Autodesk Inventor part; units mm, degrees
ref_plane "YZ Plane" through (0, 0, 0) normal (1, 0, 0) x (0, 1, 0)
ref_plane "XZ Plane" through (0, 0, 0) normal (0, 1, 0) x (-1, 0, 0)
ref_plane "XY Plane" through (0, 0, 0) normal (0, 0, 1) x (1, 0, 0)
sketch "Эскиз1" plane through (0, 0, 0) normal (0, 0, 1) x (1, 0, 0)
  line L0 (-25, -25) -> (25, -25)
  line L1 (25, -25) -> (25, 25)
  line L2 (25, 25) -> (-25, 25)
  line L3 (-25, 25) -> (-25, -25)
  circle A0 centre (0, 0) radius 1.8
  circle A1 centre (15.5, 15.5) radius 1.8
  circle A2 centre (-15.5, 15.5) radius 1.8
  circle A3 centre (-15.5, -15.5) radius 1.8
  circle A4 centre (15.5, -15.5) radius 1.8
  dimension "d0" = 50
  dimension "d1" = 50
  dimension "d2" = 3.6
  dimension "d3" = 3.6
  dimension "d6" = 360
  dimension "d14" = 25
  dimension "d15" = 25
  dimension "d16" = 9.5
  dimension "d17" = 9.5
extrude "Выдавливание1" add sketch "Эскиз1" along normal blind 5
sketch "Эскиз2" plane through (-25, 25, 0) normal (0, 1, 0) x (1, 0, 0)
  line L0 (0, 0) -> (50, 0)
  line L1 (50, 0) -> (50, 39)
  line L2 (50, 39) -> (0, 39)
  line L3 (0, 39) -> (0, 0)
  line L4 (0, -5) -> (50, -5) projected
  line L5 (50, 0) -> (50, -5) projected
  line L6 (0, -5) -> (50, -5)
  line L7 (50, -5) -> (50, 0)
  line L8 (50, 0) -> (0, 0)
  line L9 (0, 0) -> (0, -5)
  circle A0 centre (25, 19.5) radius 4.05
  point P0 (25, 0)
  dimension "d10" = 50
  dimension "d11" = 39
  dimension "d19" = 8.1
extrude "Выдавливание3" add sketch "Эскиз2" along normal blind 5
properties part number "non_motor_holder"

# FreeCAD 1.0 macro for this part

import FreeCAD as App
import Part
import Sketcher
from FreeCAD import Vector


def add_polygon(sketch, points):
    """Adds a closed chain of lines whose ends are joined by coincident constraints."""
    first, n = sketch.GeometryCount, len(points)
    for a, b in zip(points, points[1:] + points[:1]):
        sketch.addGeometry(Part.LineSegment(App.Vector(*a, 0), App.Vector(*b, 0)), False)
    for i in range(n):
        sketch.addConstraint(Sketcher.Constraint("Coincident", first + i, 2, first + (i + 1) % n, 1))

doc = App.newDocument("Part")
body = doc.addObject("PartDesign::Body", "Body")

sketch1 = doc.addObject("Sketcher::SketchObject", "Sketch")
body.addObject(sketch1)
sketch1.AttachmentSupport = (doc.XY_Plane, [""])
sketch1.MapMode = "FlatFace"
add_polygon(sketch1, [(-25, 25), (-25, -25), (25, -25), (25, 25)])
sketch1.addGeometry(Part.Circle(Vector(-15.5, -15.5, 0), Vector(0, 0, 1), 1.8), False)
sketch1.addGeometry(Part.Circle(Vector(15.5, -15.5, 0), Vector(0, 0, 1), 1.8), False)
sketch1.addGeometry(Part.Circle(Vector(-15.5, 15.5, 0), Vector(0, 0, 1), 1.8), False)
sketch1.addGeometry(Part.Circle(Vector(0, 0, 0), Vector(0, 0, 1), 1.8), False)
sketch1.addGeometry(Part.Circle(Vector(15.5, 15.5, 0), Vector(0, 0, 1), 1.8), False)
sketch1.addConstraint([
    Sketcher.Constraint("Vertical", 0),
    Sketcher.Constraint("Horizontal", 1),
    Sketcher.Constraint("Vertical", 2),
    Sketcher.Constraint("Horizontal", 3),
    Sketcher.Constraint("Coincident", 7, 3, -1, 1),
    Sketcher.Constraint("Equal", 4, 5),
    Sketcher.Constraint("Equal", 5, 6),
    Sketcher.Constraint("Equal", 6, 7),
    Sketcher.Constraint("Equal", 7, 8),
    Sketcher.Constraint("Symmetric", 5, 3, 6, 3, -1, 1),
    Sketcher.Constraint("Symmetric", 4, 3, 8, 3, -1, 1),
    Sketcher.Constraint("Symmetric", 0, 2, 2, 2, -1, 1),
    Sketcher.Constraint("Symmetric", 4, 3, 5, 3, -2),
    Sketcher.Constraint("Equal", 3, 0),
    Sketcher.Constraint("Diameter", 4, 3.6),
    Sketcher.Constraint("DistanceX", 1, 1, 1, 2, 50.0),
    Sketcher.Constraint("DistanceX", 0, 2, 4, 3, 9.5),
    Sketcher.Constraint("DistanceY", 0, 2, 4, 3, 9.5),
])
pad1 = doc.addObject("PartDesign::Pad", "Pad")
body.addObject(pad1)
pad1.Profile = sketch1
pad1.Length = 5

sketch2 = doc.addObject("Sketcher::SketchObject", "Sketch001")
body.addObject(sketch2)
sketch2.AttachmentSupport = (doc.XZ_Plane, [""])
sketch2.MapMode = "FlatFace"
sketch2.AttachmentOffset = App.Placement(Vector(0, 0, -25), App.Rotation())
add_polygon(sketch2, [(-25, -39), (-25, 5), (25, 5), (25, -39)])
sketch2.addGeometry(Part.Circle(Vector(0, -19.5, 0), Vector(0, 0, 1), 4), False)
sketch2.addConstraint([
    Sketcher.Constraint("Vertical", 0),
    Sketcher.Constraint("Horizontal", 1),
    Sketcher.Constraint("Vertical", 2),
    Sketcher.Constraint("Horizontal", 3),
    Sketcher.Constraint("PointOnObject", 4, 3, -2),
    Sketcher.Constraint("Diameter", 4, 8.1),
    Sketcher.Constraint("DistanceX", 1, 1, 1, 2, 50.0),
    Sketcher.Constraint("DistanceY", 2, 2, -1, 1, 39.0),
    Sketcher.Constraint("DistanceY", 0, 1, 0, 2, 44.0),
    Sketcher.Constraint("DistanceX", 0, 2, -1, 1, 25.0),
    Sketcher.Constraint("DistanceY", 4, 3, -1, 1, 19.5),
])
pad2 = doc.addObject("PartDesign::Pad", "Pad001")
body.addObject(pad2)
pad2.Profile = sketch2
pad2.Length = 5
pad2.Reversed = True

doc.recompute()
